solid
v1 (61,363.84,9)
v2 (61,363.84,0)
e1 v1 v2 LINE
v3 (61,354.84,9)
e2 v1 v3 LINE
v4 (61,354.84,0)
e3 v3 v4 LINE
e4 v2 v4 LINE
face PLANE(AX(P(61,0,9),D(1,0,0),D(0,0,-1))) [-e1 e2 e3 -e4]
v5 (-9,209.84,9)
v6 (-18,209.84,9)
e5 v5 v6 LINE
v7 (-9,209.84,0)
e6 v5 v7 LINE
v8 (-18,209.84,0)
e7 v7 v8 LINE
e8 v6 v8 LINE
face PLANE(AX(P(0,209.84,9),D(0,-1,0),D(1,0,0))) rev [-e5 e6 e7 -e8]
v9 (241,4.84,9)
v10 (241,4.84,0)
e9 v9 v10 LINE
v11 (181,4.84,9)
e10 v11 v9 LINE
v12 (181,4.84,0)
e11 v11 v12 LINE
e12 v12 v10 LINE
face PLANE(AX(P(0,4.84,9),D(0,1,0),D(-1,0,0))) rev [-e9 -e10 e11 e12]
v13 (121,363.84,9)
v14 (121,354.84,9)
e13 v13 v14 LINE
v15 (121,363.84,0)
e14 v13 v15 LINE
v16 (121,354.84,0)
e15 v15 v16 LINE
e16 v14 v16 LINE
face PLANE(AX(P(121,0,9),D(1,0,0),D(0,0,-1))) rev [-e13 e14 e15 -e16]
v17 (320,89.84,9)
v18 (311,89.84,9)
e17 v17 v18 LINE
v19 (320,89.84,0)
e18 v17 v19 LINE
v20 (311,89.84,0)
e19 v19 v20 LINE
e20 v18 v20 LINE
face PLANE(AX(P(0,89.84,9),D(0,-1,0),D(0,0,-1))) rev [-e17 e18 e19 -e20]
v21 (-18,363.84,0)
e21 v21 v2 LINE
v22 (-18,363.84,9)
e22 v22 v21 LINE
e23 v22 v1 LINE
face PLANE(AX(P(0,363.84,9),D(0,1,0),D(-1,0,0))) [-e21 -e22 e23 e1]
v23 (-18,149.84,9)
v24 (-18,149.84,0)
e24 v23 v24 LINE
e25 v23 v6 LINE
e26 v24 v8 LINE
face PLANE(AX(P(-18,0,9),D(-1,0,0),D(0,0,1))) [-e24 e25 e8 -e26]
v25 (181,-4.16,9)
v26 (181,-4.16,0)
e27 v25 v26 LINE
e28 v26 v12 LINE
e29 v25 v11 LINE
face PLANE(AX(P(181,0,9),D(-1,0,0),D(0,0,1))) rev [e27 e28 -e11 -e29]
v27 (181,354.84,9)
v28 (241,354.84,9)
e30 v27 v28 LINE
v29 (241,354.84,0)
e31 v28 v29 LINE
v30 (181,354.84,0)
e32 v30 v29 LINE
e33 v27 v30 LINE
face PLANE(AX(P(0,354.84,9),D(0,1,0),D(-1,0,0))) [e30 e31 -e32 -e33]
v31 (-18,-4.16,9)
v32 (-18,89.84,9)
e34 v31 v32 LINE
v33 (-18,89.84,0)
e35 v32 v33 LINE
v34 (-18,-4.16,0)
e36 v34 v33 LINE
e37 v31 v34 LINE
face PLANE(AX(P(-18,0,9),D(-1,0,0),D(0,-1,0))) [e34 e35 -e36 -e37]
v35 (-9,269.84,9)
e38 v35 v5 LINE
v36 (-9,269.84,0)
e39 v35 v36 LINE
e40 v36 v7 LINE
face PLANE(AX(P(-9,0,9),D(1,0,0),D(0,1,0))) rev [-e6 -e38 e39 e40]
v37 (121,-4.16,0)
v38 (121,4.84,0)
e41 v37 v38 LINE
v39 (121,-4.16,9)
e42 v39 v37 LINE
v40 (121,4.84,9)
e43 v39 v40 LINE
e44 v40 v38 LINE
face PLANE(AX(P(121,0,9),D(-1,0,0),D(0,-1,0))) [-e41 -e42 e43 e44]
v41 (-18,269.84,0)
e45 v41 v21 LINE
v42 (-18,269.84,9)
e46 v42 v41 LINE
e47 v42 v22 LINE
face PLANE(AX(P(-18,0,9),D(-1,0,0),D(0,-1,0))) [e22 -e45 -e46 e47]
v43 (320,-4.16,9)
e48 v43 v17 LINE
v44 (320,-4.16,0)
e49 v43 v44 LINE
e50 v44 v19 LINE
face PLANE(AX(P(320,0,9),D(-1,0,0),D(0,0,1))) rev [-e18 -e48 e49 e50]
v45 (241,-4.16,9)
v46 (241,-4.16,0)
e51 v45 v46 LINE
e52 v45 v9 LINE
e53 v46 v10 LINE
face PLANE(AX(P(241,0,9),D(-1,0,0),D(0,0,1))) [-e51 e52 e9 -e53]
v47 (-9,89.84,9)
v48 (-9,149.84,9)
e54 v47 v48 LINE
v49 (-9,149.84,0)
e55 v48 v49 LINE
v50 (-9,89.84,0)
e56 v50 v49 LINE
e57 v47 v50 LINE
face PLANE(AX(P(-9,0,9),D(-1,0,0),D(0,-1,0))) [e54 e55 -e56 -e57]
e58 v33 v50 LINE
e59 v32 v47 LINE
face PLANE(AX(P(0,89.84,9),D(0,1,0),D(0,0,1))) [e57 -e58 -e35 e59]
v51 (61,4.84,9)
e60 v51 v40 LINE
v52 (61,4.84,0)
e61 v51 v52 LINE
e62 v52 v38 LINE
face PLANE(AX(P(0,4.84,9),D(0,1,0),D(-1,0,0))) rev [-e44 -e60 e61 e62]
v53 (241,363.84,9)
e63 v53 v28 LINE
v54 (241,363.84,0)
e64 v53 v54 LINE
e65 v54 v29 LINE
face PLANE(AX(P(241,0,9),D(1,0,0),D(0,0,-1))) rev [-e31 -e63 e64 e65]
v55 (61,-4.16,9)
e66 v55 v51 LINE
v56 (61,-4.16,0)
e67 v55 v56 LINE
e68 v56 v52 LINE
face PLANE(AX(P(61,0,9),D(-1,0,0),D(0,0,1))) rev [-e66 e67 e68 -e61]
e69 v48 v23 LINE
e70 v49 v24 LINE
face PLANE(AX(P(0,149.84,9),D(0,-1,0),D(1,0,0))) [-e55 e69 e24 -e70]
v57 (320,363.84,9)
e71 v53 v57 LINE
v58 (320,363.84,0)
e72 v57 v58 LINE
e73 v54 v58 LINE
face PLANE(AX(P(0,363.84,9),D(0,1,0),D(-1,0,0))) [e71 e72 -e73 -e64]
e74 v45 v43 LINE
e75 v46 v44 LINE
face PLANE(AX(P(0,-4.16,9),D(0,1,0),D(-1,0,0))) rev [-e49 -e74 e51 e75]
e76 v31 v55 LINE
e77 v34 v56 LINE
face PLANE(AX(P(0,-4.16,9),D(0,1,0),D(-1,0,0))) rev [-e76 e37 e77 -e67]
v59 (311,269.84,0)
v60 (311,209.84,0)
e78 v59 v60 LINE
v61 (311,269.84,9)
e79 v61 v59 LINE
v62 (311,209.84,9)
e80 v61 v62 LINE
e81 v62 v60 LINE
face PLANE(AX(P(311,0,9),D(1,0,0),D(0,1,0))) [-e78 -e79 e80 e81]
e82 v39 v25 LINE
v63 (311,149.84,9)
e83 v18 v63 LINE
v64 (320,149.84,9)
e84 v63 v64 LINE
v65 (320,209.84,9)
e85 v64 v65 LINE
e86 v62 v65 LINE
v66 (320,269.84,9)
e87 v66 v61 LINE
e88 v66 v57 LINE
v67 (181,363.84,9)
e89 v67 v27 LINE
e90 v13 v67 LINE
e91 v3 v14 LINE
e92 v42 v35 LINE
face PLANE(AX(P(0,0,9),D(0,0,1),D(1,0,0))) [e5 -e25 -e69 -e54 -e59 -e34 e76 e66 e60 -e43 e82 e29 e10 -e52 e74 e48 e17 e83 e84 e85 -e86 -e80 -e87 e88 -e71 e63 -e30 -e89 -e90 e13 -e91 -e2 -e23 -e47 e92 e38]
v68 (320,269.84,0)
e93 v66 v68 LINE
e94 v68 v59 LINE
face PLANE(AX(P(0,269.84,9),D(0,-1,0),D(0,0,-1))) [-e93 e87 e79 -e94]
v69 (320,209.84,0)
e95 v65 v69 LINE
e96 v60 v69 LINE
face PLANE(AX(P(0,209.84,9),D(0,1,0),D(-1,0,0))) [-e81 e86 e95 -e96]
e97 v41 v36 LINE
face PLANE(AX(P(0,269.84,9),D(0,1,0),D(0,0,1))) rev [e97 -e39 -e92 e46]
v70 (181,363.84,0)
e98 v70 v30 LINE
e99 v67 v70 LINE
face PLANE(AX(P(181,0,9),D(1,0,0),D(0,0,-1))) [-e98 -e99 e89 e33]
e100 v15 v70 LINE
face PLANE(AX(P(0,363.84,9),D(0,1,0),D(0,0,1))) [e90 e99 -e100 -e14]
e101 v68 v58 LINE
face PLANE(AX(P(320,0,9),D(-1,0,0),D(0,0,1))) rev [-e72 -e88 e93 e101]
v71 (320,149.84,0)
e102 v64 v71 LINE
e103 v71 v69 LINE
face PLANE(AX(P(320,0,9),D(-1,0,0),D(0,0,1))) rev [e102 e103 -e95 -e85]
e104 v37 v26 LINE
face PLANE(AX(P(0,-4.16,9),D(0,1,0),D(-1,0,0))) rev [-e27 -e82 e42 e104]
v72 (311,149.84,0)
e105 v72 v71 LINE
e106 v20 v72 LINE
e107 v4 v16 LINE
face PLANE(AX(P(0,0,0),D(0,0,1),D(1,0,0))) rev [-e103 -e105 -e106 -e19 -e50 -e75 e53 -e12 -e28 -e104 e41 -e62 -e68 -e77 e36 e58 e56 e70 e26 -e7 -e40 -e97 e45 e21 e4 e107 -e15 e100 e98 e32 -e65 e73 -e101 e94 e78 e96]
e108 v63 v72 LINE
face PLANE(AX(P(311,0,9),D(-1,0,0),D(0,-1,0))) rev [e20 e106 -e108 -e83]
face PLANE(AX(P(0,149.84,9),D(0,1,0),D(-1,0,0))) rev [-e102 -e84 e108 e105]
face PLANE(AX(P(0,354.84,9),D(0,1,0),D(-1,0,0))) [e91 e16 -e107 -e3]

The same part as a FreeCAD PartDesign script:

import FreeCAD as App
import Part
import Sketcher
from FreeCAD import Vector
Q = App.Units.Quantity


def add_polygon(sketch, points):
    """Adds a closed chain of lines whose ends are joined by coincident constraints."""
    first, n = sketch.GeometryCount, len(points)
    for a, b in zip(points, points[1:] + points[:1]):
        sketch.addGeometry(Part.LineSegment(App.Vector(*a, 0), App.Vector(*b, 0)), False)
    for i in range(n):
        sketch.addConstraint(Sketcher.Constraint("Coincident", first + i, 2, first + (i + 1) % n, 1))

doc = App.newDocument("Part")
params = doc.addObject("Spreadsheet::Sheet", "Params")
for row, (alias, value) in enumerate([
    ("sketch1_width", "9 mm"),
    ("sketch1_width2", "79 mm"),
    ("sketch1_width3", "60 mm"),
    ("sketch1_height", "94 mm"),
    ("pad1_length", "9 mm"),
], start=1):
    params.set(f"A{row}", alias)
    params.set(f"B{row}", "=" + value)
    params.setAlias(f"B{row}", alias)

body = doc.addObject("PartDesign::Body", "Body")

# Sketch on XY plane
sketch1 = doc.addObject("Sketcher::SketchObject", "Sketch")
body.addObject(sketch1)
sketch1.AttachmentSupport = (doc.XY_Plane, [""])
sketch1.MapMode = "FlatFace"
add_polygon(sketch1, [(311, 270), (320, 270), (320, 364), (241, 364), (241, 355), (181, 355), (181, 364), (121, 364), (121, 355), (61, 355), (61, 364), (-18, 364), (-18, 270), (-9, 270), (-9, 210), (-18, 210), (-18, 150), (-9, 150), (-9, 90), (-18, 90), (-18, -4), (61, -4), (61, 5), (121, 5), (121, -4), (181, -4), (181, 5), (241, 5), (241, -4), (320, -4), (320, 90), (311, 90), (311, 150), (320, 150), (320, 210), (311, 210)])  # lines 0-35
sketch1.addConstraint(Sketcher.Constraint("Horizontal", 0))
sketch1.addConstraint(Sketcher.Constraint("Vertical", 1))
sketch1.addConstraint(Sketcher.Constraint("Horizontal", 2))
sketch1.addConstraint(Sketcher.Constraint("Vertical", 3))
sketch1.addConstraint(Sketcher.Constraint("Horizontal", 4))
sketch1.addConstraint(Sketcher.Constraint("Vertical", 5))
sketch1.addConstraint(Sketcher.Constraint("Horizontal", 6))
sketch1.addConstraint(Sketcher.Constraint("Vertical", 7))
sketch1.addConstraint(Sketcher.Constraint("Horizontal", 8))
sketch1.addConstraint(Sketcher.Constraint("Vertical", 9))
sketch1.addConstraint(Sketcher.Constraint("Horizontal", 10))
sketch1.addConstraint(Sketcher.Constraint("Vertical", 11))
sketch1.addConstraint(Sketcher.Constraint("Horizontal", 12))
sketch1.addConstraint(Sketcher.Constraint("Vertical", 13))
sketch1.addConstraint(Sketcher.Constraint("Horizontal", 14))
sketch1.addConstraint(Sketcher.Constraint("Vertical", 15))
sketch1.addConstraint(Sketcher.Constraint("Horizontal", 16))
sketch1.addConstraint(Sketcher.Constraint("Vertical", 17))
sketch1.addConstraint(Sketcher.Constraint("Horizontal", 18))
sketch1.addConstraint(Sketcher.Constraint("Vertical", 19))
sketch1.addConstraint(Sketcher.Constraint("Horizontal", 20))
sketch1.addConstraint(Sketcher.Constraint("Vertical", 21))
sketch1.addConstraint(Sketcher.Constraint("Horizontal", 22))
sketch1.addConstraint(Sketcher.Constraint("Vertical", 23))
sketch1.addConstraint(Sketcher.Constraint("Horizontal", 24))
sketch1.addConstraint(Sketcher.Constraint("Vertical", 25))
sketch1.addConstraint(Sketcher.Constraint("Horizontal", 26))
sketch1.addConstraint(Sketcher.Constraint("Vertical", 27))
sketch1.addConstraint(Sketcher.Constraint("Horizontal", 28))
sketch1.addConstraint(Sketcher.Constraint("Vertical", 29))
sketch1.addConstraint(Sketcher.Constraint("Horizontal", 30))
sketch1.addConstraint(Sketcher.Constraint("Vertical", 31))
sketch1.addConstraint(Sketcher.Constraint("Horizontal", 32))
sketch1.addConstraint(Sketcher.Constraint("Vertical", 33))
sketch1.addConstraint(Sketcher.Constraint("Horizontal", 34))
sketch1.addConstraint(Sketcher.Constraint("Vertical", 35))
sketch1.addConstraint(Sketcher.Constraint("Horizontal", 2, 2, 5, 2))
sketch1.addConstraint(Sketcher.Constraint("Horizontal", 4, 2, 7, 2))
sketch1.addConstraint(Sketcher.Constraint("Horizontal", 6, 2, 9, 2))
sketch1.addConstraint(Sketcher.Constraint("Horizontal", 0, 2, 11, 2))
sketch1.addConstraint(Sketcher.Constraint("Horizontal", 20, 2, 23, 2))
sketch1.addConstraint(Sketcher.Constraint("Horizontal", 22, 2, 25, 2))
sketch1.addConstraint(Sketcher.Constraint("Horizontal", 24, 2, 27, 2))
sketch1.addConstraint(Sketcher.Constraint("Horizontal", 18, 2, 29, 2))
sketch1.addConstraint(Sketcher.Constraint("Horizontal", 16, 2, 31, 2))
sketch1.addConstraint(Sketcher.Constraint("Horizontal", 14, 2, 33, 2))
sketch1.addConstraint(Sketcher.Constraint("Vertical", 11, 2, 14, 2))
sketch1.addConstraint(Sketcher.Constraint("Vertical", 13, 2, 16, 2))
sketch1.addConstraint(Sketcher.Constraint("Vertical", 15, 2, 18, 2))
sketch1.addConstraint(Sketcher.Constraint("Vertical", 9, 2, 20, 2))
sketch1.addConstraint(Sketcher.Constraint("Vertical", 7, 2, 22, 2))
sketch1.addConstraint(Sketcher.Constraint("Vertical", 5, 2, 24, 2))
sketch1.addConstraint(Sketcher.Constraint("Vertical", 3, 2, 26, 2))
sketch1.addConstraint(Sketcher.Constraint("Vertical", 1, 2, 28, 2))
sketch1.addConstraint(Sketcher.Constraint("Vertical", 29, 2, 32, 2))
sketch1.addConstraint(Sketcher.Constraint("Vertical", 31, 2, 34, 2))
sketch1.addConstraint(Sketcher.Constraint("Equal", 4, 6))
sketch1.addConstraint(Sketcher.Constraint("Equal", 6, 8))
sketch1.addConstraint(Sketcher.Constraint("Equal", 2, 10))
sketch1.addConstraint(Sketcher.Constraint("Equal", 0, 12))
sketch1.addConstraint(Sketcher.Constraint("Equal", 34, 3))
sketch1.addConstraint(Sketcher.Constraint("Equal", 26, 13))
sketch1.addConstraint(Sketcher.Constraint("Equal", 13, 15))
sketch1.addConstraint(Sketcher.Constraint("Equal", 15, 17))
sketch1.addConstraint(Sketcher.Constraint("Equal", 11, 19))
sketch1.addConstraint(Sketcher.Constraint("Equal", 9, 21))
sketch1.addConstraint(Sketcher.Constraint("DistanceX", 0, 1, 0, 2, Q("9 mm")))
sketch1.addConstraint(Sketcher.Constraint("DistanceX", 2, 2, 2, 1, Q("79 mm")))
sketch1.addConstraint(Sketcher.Constraint("DistanceX", 4, 2, 4, 1, Q("60 mm")))
sketch1.addConstraint(Sketcher.Constraint("DistanceY", 1, 1, 1, 2, Q("94 mm")))
sketch1.addConstraint(Sketcher.Constraint("DistanceX", -1, 1, 0, 2, Q("320 mm")))
sketch1.addConstraint(Sketcher.Constraint("DistanceY", -1, 1, 0, 2, Q("269.84 mm")))
sketch1.setExpression("Constraints[102]", "Params.sketch1_width")
sketch1.setExpression("Constraints[103]", "Params.sketch1_width2")
sketch1.setExpression("Constraints[104]", "Params.sketch1_width3")
sketch1.setExpression("Constraints[105]", "Params.sketch1_height")
pad1 = doc.addObject("PartDesign::Pad", "Pad")
body.addObject(pad1)
pad1.Profile = sketch1
pad1.setExpression("Length", "Params.pad1_length")

doc.recompute()
